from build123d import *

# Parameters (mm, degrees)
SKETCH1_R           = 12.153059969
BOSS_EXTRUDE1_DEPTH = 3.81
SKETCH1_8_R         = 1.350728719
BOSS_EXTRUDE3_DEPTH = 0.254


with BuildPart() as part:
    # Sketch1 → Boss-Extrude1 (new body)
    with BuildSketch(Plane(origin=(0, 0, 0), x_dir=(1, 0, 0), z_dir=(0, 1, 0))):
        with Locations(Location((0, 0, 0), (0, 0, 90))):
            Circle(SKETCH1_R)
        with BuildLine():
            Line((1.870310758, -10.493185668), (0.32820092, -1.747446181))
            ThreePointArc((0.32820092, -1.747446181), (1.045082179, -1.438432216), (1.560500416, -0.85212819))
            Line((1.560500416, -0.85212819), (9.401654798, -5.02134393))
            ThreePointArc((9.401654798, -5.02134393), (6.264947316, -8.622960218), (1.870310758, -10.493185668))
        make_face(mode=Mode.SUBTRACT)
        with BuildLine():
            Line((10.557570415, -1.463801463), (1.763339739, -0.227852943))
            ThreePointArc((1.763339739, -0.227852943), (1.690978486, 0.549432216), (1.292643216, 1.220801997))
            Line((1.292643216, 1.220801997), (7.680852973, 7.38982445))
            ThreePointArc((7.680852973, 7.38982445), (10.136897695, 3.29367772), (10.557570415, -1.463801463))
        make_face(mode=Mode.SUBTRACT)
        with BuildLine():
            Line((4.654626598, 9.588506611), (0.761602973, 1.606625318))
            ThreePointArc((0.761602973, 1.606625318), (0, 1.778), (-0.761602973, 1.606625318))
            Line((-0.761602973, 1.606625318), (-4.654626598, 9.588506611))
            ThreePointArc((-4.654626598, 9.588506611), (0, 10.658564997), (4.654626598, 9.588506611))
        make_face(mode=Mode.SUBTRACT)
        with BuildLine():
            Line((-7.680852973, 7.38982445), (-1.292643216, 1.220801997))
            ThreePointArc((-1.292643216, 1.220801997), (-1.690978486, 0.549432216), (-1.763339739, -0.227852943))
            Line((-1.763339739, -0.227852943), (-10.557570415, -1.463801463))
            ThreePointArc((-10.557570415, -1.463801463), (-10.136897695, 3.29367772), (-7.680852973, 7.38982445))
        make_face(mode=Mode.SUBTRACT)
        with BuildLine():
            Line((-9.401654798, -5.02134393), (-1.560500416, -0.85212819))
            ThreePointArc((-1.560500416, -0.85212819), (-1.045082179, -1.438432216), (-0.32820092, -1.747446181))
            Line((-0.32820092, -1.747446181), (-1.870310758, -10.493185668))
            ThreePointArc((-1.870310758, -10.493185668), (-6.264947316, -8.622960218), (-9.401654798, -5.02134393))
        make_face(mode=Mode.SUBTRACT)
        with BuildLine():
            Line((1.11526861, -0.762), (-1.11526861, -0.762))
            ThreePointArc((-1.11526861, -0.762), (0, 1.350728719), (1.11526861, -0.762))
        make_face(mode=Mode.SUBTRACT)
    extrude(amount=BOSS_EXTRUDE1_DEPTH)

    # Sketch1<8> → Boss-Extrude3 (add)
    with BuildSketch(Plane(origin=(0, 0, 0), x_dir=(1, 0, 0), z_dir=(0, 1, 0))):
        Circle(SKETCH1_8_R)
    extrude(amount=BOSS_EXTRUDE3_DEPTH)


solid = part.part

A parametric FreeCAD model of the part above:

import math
import FreeCAD as App
import Part
import Sketcher
Q = App.Units.Quantity

doc = App.newDocument("Part")
body = doc.addObject("PartDesign::Body", "Body")

# Sketch on XZ plane
sketch1 = body.newObject("Sketcher::SketchObject", "Sketch")
sketch1.AttachmentSupport = (doc.getObject("XZ_Plane"), [""])
sketch1.MapMode = "FlatFace"
sketch1.addGeometry([
    Part.Circle(App.Vector(0, 0, 0), App.Vector(0, 0, 1), 12.2),  # 0
    Part.ArcOfCircle(Part.Circle(App.Vector(0, 0, 0), App.Vector(0, 0, 1), 10.7), math.radians(28), math.radians(80)),  # 1
    Part.LineSegment(App.Vector(1.9, 10.5, 0), App.Vector(0.3, 1.7, 0)),  # 2
    Part.ArcOfCircle(Part.Circle(App.Vector(0, 0, 0), App.Vector(0, 0, 1), 1.8), math.radians(29), math.radians(79)),  # 3
    Part.LineSegment(App.Vector(1.6, 0.9, 0), App.Vector(9.4, 5, 0)),  # 4
    Part.ArcOfCircle(Part.Circle(App.Vector(0, 0, 0), App.Vector(0, 0, 1), 10.7), math.radians(-44), math.radians(8)),  # 5
    Part.LineSegment(App.Vector(10.6, 1.5, 0), App.Vector(1.8, 0.2, 0)),  # 6
    Part.ArcOfCircle(Part.Circle(App.Vector(0, 0, 0), App.Vector(0, 0, 1), 1.8), math.radians(-43), math.radians(7)),  # 7
    Part.LineSegment(App.Vector(1.3, -1.2, 0), App.Vector(7.7, -7.4, 0)),  # 8
    Part.ArcOfCircle(Part.Circle(App.Vector(0, 0, 0), App.Vector(0, 0, 1), 10.7), math.radians(100), math.radians(152)),  # 9
    Part.LineSegment(App.Vector(-9.4, 5, 0), App.Vector(-1.6, 0.9, 0)),  # 10
    Part.ArcOfCircle(Part.Circle(App.Vector(0, 0, 0), App.Vector(0, 0, 1), 1.8), math.radians(101), math.radians(151)),  # 11
    Part.LineSegment(App.Vector(-0.3, 1.7, 0), App.Vector(-1.9, 10.5, 0)),  # 12
    Part.ArcOfCircle(Part.Circle(App.Vector(0, 0, 0), App.Vector(0, 0, 1), 1.4), math.radians(146), math.radians(394)),  # 13
    Part.LineSegment(App.Vector(1.1, 0.8, 0), App.Vector(-1.1, 0.8, 0)),  # 14
    Part.ArcOfCircle(Part.Circle(App.Vector(0, 0, 0), App.Vector(0, 0, 1), 10.7), math.radians(-116), math.radians(-64)),  # 15
    Part.LineSegment(App.Vector(4.7, -9.6, 0), App.Vector(0.8, -1.6, 0)),  # 16
    Part.ArcOfCircle(Part.Circle(App.Vector(0, 0, 0), App.Vector(0, 0, 1), 1.8), math.radians(-115), math.radians(-65)),  # 17
    Part.LineSegment(App.Vector(-0.8, -1.6, 0), App.Vector(-4.7, -9.6, 0)),  # 18
    Part.ArcOfCircle(Part.Circle(App.Vector(0, 0, 0), App.Vector(0, 0, 1), 10.7), math.radians(172), math.radians(224)),  # 19
    Part.LineSegment(App.Vector(-7.7, -7.4, 0), App.Vector(-1.3, -1.2, 0)),  # 20
    Part.ArcOfCircle(Part.Circle(App.Vector(0, 0, 0), App.Vector(0, 0, 1), 1.8), math.radians(173), math.radians(223)),  # 21
    Part.LineSegment(App.Vector(-1.8, 0.2, 0), App.Vector(-10.6, 1.5, 0)),  # 22
], False)
sketch1.addConstraint([
    Sketcher.Constraint("Coincident", 1, 2, 2, 1),
    Sketcher.Constraint("Coincident", 2, 2, 3, 2),
    Sketcher.Constraint("Coincident", 3, 1, 4, 1),
    Sketcher.Constraint("Coincident", 4, 2, 1, 1),
    Sketcher.Constraint("Coincident", 5, 2, 6, 1),
    Sketcher.Constraint("Coincident", 6, 2, 7, 2),
    Sketcher.Constraint("Coincident", 7, 1, 8, 1),
    Sketcher.Constraint("Coincident", 8, 2, 5, 1),
    Sketcher.Constraint("Coincident", 9, 2, 10, 1),
    Sketcher.Constraint("Coincident", 10, 2, 11, 2),
    Sketcher.Constraint("Coincident", 11, 1, 12, 1),
    Sketcher.Constraint("Coincident", 12, 2, 9, 1),
    Sketcher.Constraint("Coincident", 13, 1, 14, 2),
    Sketcher.Constraint("Coincident", 14, 1, 13, 2),
    Sketcher.Constraint("Coincident", 15, 2, 16, 1),
    Sketcher.Constraint("Coincident", 16, 2, 17, 2),
    Sketcher.Constraint("Coincident", 17, 1, 18, 1),
    Sketcher.Constraint("Coincident", 18, 2, 15, 1),
    Sketcher.Constraint("Coincident", 19, 2, 20, 1),
    Sketcher.Constraint("Coincident", 20, 2, 21, 2),
    Sketcher.Constraint("Coincident", 21, 1, 22, 1),
    Sketcher.Constraint("Coincident", 22, 2, 19, 1),
    Sketcher.Constraint("Horizontal", 14),
    Sketcher.Constraint("Coincident", 0, 3, -1, 1),
    Sketcher.Constraint("Coincident", 1, 3, -1, 1),
    Sketcher.Constraint("Coincident", 3, 3, -1, 1),
    Sketcher.Constraint("Coincident", 5, 3, -1, 1),
    Sketcher.Constraint("Coincident", 7, 3, -1, 1),
    Sketcher.Constraint("Coincident", 9, 3, -1, 1),
    Sketcher.Constraint("Coincident", 11, 3, -1, 1),
    Sketcher.Constraint("Coincident", 13, 3, -1, 1),
    Sketcher.Constraint("Coincident", 15, 3, -1, 1),
    Sketcher.Constraint("Coincident", 17, 3, -1, 1),
    Sketcher.Constraint("Coincident", 19, 3, -1, 1),
    Sketcher.Constraint("Coincident", 21, 3, -1, 1),
    Sketcher.Constraint("Equal", 1, 5),
    Sketcher.Constraint("Equal", 3, 7),
    Sketcher.Constraint("Equal", 5, 9),
    Sketcher.Constraint("Equal", 7, 11),
    Sketcher.Constraint("Equal", 9, 15),
    Sketcher.Constraint("Equal", 11, 17),
    Sketcher.Constraint("Equal", 15, 19),
    Sketcher.Constraint("Equal", 17, 21),
    Sketcher.Constraint("Horizontal", 4, 2, 9, 2),
    Sketcher.Constraint("Horizontal", 3, 1, 10, 2),
    Sketcher.Constraint("Horizontal", 2, 2, 11, 1),
    Sketcher.Constraint("Horizontal", 1, 2, 12, 2),
    Sketcher.Constraint("Horizontal", 16, 2, 17, 1),
    Sketcher.Constraint("Horizontal", 15, 2, 18, 2),
    Sketcher.Constraint("Horizontal", 8, 2, 19, 2),
    Sketcher.Constraint("Horizontal", 7, 1, 20, 2),
    Sketcher.Constraint("Horizontal", 6, 2, 21, 1),
    Sketcher.Constraint("Horizontal", 5, 2, 22, 2),
    Sketcher.Constraint("Equal", 2, 4),
    Sketcher.Constraint("Equal", 4, 6),
    Sketcher.Constraint("Equal", 6, 8),
    Sketcher.Constraint("Equal", 12, 16),
    Sketcher.Constraint("Radius", 3, Q("0.07 in")),
    Sketcher.Constraint("Angle", 2, Q("-100 deg")),
    Sketcher.Constraint("Angle", 4, Q("28 deg")),
    Sketcher.Constraint("Angle", 6, Q("-172 deg")),
    Sketcher.Constraint("Angle", 8, Q("-44 deg")),
    Sketcher.Constraint("Angle", 16, Q("116 deg")),
    Sketcher.Constraint("DistanceY", -1, 1, 13, 1, Q("0.03 in")),
    Sketcher.Constraint("Diameter", 0, Q("24.30612 mm")),
    Sketcher.Constraint("Radius", 13, Q("1.350729 mm")),
    Sketcher.Constraint("Radius", 1, Q("10.658565 mm")),
    Sketcher.Constraint("DistanceX", -1, 1, 2, 2, Q("0.328201 mm")),
])
pad1 = body.newObject("PartDesign::Pad", "Pad")
pad1.Profile = sketch1
pad1.Length = Q("0.15 in")
pad1.Reversed = True

# Sketch on XZ plane
sketch2 = body.newObject("Sketcher::SketchObject", "Sketch001")
sketch2.AttachmentSupport = (doc.getObject("XZ_Plane"), [""])
sketch2.MapMode = "FlatFace"
sketch2.addGeometry(Part.Circle(App.Vector(0, 0, 0), App.Vector(0, 0, 1), 1.4), False)
sketch2.addConstraint([
    Sketcher.Constraint("Coincident", 0, 3, -1, 1),
    Sketcher.Constraint("Diameter", 0, Q("2.701457 mm")),
])
pad2 = body.newObject("PartDesign::Pad", "Pad001")
pad2.Profile = sketch2
pad2.Length = Q("0.01 in")
pad2.Reversed = True

doc.recompute()
